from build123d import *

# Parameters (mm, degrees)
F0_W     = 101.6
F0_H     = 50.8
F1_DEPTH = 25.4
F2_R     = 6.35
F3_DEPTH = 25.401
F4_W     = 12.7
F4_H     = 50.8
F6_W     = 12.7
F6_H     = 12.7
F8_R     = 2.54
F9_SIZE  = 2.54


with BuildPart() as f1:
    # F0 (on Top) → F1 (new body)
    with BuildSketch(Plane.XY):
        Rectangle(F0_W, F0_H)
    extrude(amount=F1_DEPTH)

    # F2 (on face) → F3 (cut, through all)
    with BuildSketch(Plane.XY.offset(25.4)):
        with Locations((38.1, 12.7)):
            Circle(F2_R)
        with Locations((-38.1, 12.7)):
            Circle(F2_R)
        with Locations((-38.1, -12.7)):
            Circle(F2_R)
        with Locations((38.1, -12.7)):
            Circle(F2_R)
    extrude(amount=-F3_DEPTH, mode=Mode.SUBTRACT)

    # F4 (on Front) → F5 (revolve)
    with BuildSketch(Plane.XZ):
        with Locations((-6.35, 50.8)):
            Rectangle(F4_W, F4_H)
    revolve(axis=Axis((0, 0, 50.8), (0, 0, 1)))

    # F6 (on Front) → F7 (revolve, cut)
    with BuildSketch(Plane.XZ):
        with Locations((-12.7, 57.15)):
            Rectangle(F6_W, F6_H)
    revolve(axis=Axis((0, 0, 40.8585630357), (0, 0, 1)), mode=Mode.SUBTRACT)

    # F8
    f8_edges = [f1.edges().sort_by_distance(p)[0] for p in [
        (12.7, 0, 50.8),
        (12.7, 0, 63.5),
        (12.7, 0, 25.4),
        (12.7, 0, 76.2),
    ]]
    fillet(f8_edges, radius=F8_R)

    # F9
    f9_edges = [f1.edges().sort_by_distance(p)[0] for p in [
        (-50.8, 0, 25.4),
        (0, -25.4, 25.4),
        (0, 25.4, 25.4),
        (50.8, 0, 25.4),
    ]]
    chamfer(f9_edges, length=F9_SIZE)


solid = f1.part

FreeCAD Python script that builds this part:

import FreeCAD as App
import Part
import Sketcher
from FreeCAD import Vector
Q = App.Units.Quantity


def edges_at(feature, points):
    """Names of the edges that pass closest to the given points."""
    edges = feature.Shape.Edges
    near = lambda p: min(range(len(edges)), key=lambda i: edges[i].distToShape(Part.Vertex(*p))[0])
    return sorted({f"Edge{near(p) + 1}" for p in points})

doc = App.newDocument("Part")
body = doc.addObject("PartDesign::Body", "Body")

# Sketch on XY plane
sketch1 = doc.addObject("Sketcher::SketchObject", "Sketch")
body.addObject(sketch1)
sketch1.AttachmentSupport = (doc.XY_Plane, [""])
sketch1.MapMode = "FlatFace"
sketch1.addGeometry([
    Part.LineSegment(Vector(-51, 25, 0), Vector(-51, -25, 0)),
    Part.LineSegment(Vector(-51, -25, 0), Vector(51, -25, 0)),
    Part.LineSegment(Vector(51, -25, 0), Vector(51, 25, 0)),
    Part.LineSegment(Vector(51, 25, 0), Vector(-51, 25, 0)),
], False)
sketch1.addConstraint([
    Sketcher.Constraint("Coincident", 0, 2, 1, 1),
    Sketcher.Constraint("Coincident", 1, 2, 2, 1),
    Sketcher.Constraint("Coincident", 2, 2, 3, 1),
    Sketcher.Constraint("Coincident", 3, 2, 0, 1),
    Sketcher.Constraint("Vertical", 0),
    Sketcher.Constraint("Horizontal", 1),
    Sketcher.Constraint("Vertical", 2),
    Sketcher.Constraint("Horizontal", 3),
    Sketcher.Constraint("Symmetric", 0, 2, 2, 2, -1, 1),
    Sketcher.Constraint("DistanceX", 1, 1, 1, 2, Q("4 in")),
    Sketcher.Constraint("DistanceY", 0, 2, 0, 1, Q("2 in")),
])
pad1 = doc.addObject("PartDesign::Pad", "Pad")
body.addObject(pad1)
pad1.Profile = sketch1
pad1.Length = Q("1 in")

# Sketch on XY plane
sketch2 = doc.addObject("Sketcher::SketchObject", "Sketch001")
body.addObject(sketch2)
sketch2.AttachmentSupport = (doc.XY_Plane, [""])
sketch2.MapMode = "FlatFace"
sketch2.AttachmentOffset = App.Placement(Vector(0, 0, 1 * 25.4), App.Rotation())
sketch2.addGeometry([
    Part.Circle(Vector(38, 13, 0), Vector(0, 0, 1), 6),
    Part.Circle(Vector(-38, 13, 0), Vector(0, 0, 1), 6),
    Part.Circle(Vector(-38, -13, 0), Vector(0, 0, 1), 6),
    Part.Circle(Vector(38, -13, 0), Vector(0, 0, 1), 6),
], False)
sketch2.addConstraint([
    Sketcher.Constraint("Equal", 0, 1),
    Sketcher.Constraint("Equal", 1, 2),
    Sketcher.Constraint("Equal", 2, 3),
    Sketcher.Constraint("Symmetric", 0, 3, 2, 3, -1, 1),
    Sketcher.Constraint("Symmetric", 1, 3, 3, 3, -1, 1),
    Sketcher.Constraint("Symmetric", 0, 3, 1, 3, -2),
    Sketcher.Constraint("Diameter", 0, Q("0.5 in")),
    Sketcher.Constraint("DistanceX", 1, 3, 0, 3, Q("3 in")),
    Sketcher.Constraint("DistanceY", 2, 3, 1, 3, Q("1 in")),
])
pocket1 = doc.addObject("PartDesign::Pocket", "Pocket")
body.addObject(pocket1)
pocket1.Profile = sketch2
pocket1.Type = "ThroughAll"

# Sketch on XZ plane
sketch3 = doc.addObject("Sketcher::SketchObject", "Sketch002")
body.addObject(sketch3)
sketch3.AttachmentSupport = (doc.XZ_Plane, [""])
sketch3.MapMode = "FlatFace"
sketch3.addGeometry([
    Part.LineSegment(Vector(-13, 76, 0), Vector(-13, 25, 0)),
    Part.LineSegment(Vector(-13, 25, 0), Vector(0, 25, 0)),
    Part.LineSegment(Vector(0, 25, 0), Vector(0, 76, 0)),
    Part.LineSegment(Vector(0, 76, 0), Vector(-13, 76, 0)),
], False)
sketch3.addConstraint([
    Sketcher.Constraint("Coincident", 0, 2, 1, 1),
    Sketcher.Constraint("Coincident", 1, 2, 2, 1),
    Sketcher.Constraint("Coincident", 2, 2, 3, 1),
    Sketcher.Constraint("Coincident", 3, 2, 0, 1),
    Sketcher.Constraint("Vertical", 0),
    Sketcher.Constraint("Horizontal", 1),
    Sketcher.Constraint("Vertical", 2),
    Sketcher.Constraint("Horizontal", 3),
    Sketcher.Constraint("PointOnObject", 1, 2, -2),
    Sketcher.Constraint("DistanceY", 0, 2, 0, 1, Q("2 in")),
    Sketcher.Constraint("DistanceX", 1, 1, 1, 2, Q("0.5 in")),
    Sketcher.Constraint("DistanceY", -1, 1, 0, 2, Q("1 in")),
])
revolution = doc.addObject("PartDesign::Revolution", "Revolution")
body.addObject(revolution)
revolution.Profile = sketch3
revolution.ReferenceAxis = (sketch3, ["V_Axis"])
revolution.Angle = 360

# Sketch on XZ plane
sketch4 = doc.addObject("Sketcher::SketchObject", "Sketch003")
body.addObject(sketch4)
sketch4.AttachmentSupport = (doc.XZ_Plane, [""])
sketch4.MapMode = "FlatFace"
sketch4.addGeometry([
    Part.LineSegment(Vector(-19, 64, 0), Vector(-19, 51, 0)),
    Part.LineSegment(Vector(-19, 51, 0), Vector(-6, 51, 0)),
    Part.LineSegment(Vector(-6, 51, 0), Vector(-6, 64, 0)),
    Part.LineSegment(Vector(-6, 64, 0), Vector(-19, 64, 0)),
], False)
sketch4.addConstraint([
    Sketcher.Constraint("Coincident", 0, 2, 1, 1),
    Sketcher.Constraint("Coincident", 1, 2, 2, 1),
    Sketcher.Constraint("Coincident", 2, 2, 3, 1),
    Sketcher.Constraint("Coincident", 3, 2, 0, 1),
    Sketcher.Constraint("Vertical", 0),
    Sketcher.Constraint("Horizontal", 1),
    Sketcher.Constraint("Vertical", 2),
    Sketcher.Constraint("Horizontal", 3),
    Sketcher.Constraint("Equal", 3, 0),
    Sketcher.Constraint("DistanceX", 1, 1, 1, 2, Q("0.5 in")),
    Sketcher.Constraint("DistanceY", -1, 1, 0, 2, Q("2 in")),
    Sketcher.Constraint("DistanceX", 0, 2, -1, 1, Q("0.75 in")),
])
groove = doc.addObject("PartDesign::Groove", "Groove")
body.addObject(groove)
groove.Profile = sketch4
groove.ReferenceAxis = (sketch4, ["V_Axis"])
groove.Angle = 360
doc.recompute()

fillet = doc.addObject("PartDesign::Fillet", "Fillet")
body.addObject(fillet)
fillet.Base = (groove, edges_at(groove, [
    (12.7, 0, 50.8),
    (12.7, 0, 63.5),
    (12.7, 0, 25.4),
    (12.7, 0, 76.2),
]))
fillet.Radius = Q("0.1 in")
doc.recompute()

chamfer = doc.addObject("PartDesign::Chamfer", "Chamfer")
body.addObject(chamfer)
chamfer.Base = (fillet, edges_at(fillet, [
    (-50.8, 0, 25.4),
    (0, -25.4, 25.4),
    (0, 25.4, 25.4),
    (50.8, 0, 25.4),
]))
chamfer.Size = Q("0.1 in")

doc.recompute()
